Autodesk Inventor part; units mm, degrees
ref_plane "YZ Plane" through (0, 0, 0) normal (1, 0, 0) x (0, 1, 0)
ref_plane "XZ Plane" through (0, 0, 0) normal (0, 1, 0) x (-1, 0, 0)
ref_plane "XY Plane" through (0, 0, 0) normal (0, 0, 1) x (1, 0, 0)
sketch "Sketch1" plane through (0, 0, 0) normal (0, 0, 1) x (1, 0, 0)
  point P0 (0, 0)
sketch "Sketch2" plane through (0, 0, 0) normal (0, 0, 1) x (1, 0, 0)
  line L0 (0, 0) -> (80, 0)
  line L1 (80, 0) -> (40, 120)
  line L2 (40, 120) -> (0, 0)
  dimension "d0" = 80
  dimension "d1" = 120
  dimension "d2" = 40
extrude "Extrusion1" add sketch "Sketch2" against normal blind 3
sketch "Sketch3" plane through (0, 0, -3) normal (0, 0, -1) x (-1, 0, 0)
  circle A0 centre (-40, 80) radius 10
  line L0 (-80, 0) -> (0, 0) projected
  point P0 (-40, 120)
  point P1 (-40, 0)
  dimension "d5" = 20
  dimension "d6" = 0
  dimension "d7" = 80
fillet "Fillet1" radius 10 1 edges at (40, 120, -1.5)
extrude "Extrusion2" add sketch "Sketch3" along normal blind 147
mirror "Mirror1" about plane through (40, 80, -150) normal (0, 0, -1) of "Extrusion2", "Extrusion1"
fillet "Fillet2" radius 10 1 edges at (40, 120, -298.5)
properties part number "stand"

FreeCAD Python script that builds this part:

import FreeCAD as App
import Part
import Sketcher
Q = App.Units.Quantity


def edges_at(feature, points):
    """Names of the edges that pass closest to the given points."""
    edges = feature.Shape.Edges
    near = lambda p: min(range(len(edges)), key=lambda i: edges[i].distToShape(Part.Vertex(*p))[0])
    return sorted({f"Edge{near(p) + 1}" for p in points})


def add_polygon(sketch, points):
    """Adds a closed chain of lines whose ends are joined by coincident constraints."""
    first, n = sketch.GeometryCount, len(points)
    for a, b in zip(points, points[1:] + points[:1]):
        sketch.addGeometry(Part.LineSegment(App.Vector(*a, 0), App.Vector(*b, 0)), False)
    for i in range(n):
        sketch.addConstraint(Sketcher.Constraint("Coincident", first + i, 2, first + (i + 1) % n, 1))

doc = App.newDocument("Part")
body = doc.addObject("PartDesign::Body", "Body")

sketch1 = body.newObject("Sketcher::SketchObject", "Sketch")
sketch1.AttachmentSupport = (doc.getObject("XY_Plane"), [""])
sketch1.MapMode = "FlatFace"
add_polygon(sketch1, [(40, 120), (0, 0), (80, 0)])
sketch1.addConstraint(Sketcher.Constraint("Horizontal", 1))
sketch1.addConstraint(Sketcher.Constraint("Coincident", 0, 2, -1, 1))
sketch1.addConstraint(Sketcher.Constraint("Equal", 0, 2))
sketch1.addConstraint(Sketcher.Constraint("DistanceX", 1, 1, 1, 2, Q("80 mm")))
sketch1.addConstraint(Sketcher.Constraint("DistanceY", -1, 1, 2, 2, Q("120 mm")))
pad1 = body.newObject("PartDesign::Pad", "Pad")
pad1.Profile = sketch1
pad1.Length = 3
pad1.Reversed = True
doc.recompute()

fillet = body.newObject("PartDesign::Fillet", "Fillet")
fillet.Base = (pad1, edges_at(pad1, [(40, 120, -1.5)]))
fillet.Radius = 10

sketch2 = body.newObject("Sketcher::SketchObject", "Sketch001")
sketch2.AttachmentSupport = (doc.getObject("XY_Plane"), [""])
sketch2.MapMode = "FlatFace"
sketch2.AttachmentOffset = App.Placement(App.Vector(0, 0, -3), App.Rotation())
sketch2.addGeometry(Part.Circle(App.Vector(40, 80, 0), App.Vector(0, 0, 1), 10), False)
sketch2.addConstraint(Sketcher.Constraint("Diameter", 0, Q("20 mm")))
sketch2.addConstraint(Sketcher.Constraint("DistanceY", -1, 1, 0, 3, Q("80 mm")))
sketch2.addConstraint(Sketcher.Constraint("DistanceX", -1, 1, 0, 3, Q("40 mm")))
pad2 = body.newObject("PartDesign::Pad", "Pad001")
pad2.Profile = sketch2
pad2.Length = 147
pad2.Reversed = True
doc.recompute()

datumplane = body.newObject("PartDesign::Plane", "DatumPlane")
datumplane.AttachmentSupport = (doc.getObject("XY_Plane"), [""])
datumplane.MapMode = "FlatFace"
datumplane.AttachmentOffset = App.Placement(App.Vector(0, 0, -150), App.Rotation())
mirrored = body.newObject("PartDesign::Mirrored", "Mirrored")
mirrored.Originals = [pad2, pad1]
mirrored.MirrorPlane = (datumplane, [""])
body.Tip = mirrored
doc.recompute()

fillet2 = body.newObject("PartDesign::Fillet", "Fillet001")
fillet2.Base = (mirrored, edges_at(mirrored, [(40, 120, -298.5)]))
fillet2.Radius = 10

doc.recompute()
